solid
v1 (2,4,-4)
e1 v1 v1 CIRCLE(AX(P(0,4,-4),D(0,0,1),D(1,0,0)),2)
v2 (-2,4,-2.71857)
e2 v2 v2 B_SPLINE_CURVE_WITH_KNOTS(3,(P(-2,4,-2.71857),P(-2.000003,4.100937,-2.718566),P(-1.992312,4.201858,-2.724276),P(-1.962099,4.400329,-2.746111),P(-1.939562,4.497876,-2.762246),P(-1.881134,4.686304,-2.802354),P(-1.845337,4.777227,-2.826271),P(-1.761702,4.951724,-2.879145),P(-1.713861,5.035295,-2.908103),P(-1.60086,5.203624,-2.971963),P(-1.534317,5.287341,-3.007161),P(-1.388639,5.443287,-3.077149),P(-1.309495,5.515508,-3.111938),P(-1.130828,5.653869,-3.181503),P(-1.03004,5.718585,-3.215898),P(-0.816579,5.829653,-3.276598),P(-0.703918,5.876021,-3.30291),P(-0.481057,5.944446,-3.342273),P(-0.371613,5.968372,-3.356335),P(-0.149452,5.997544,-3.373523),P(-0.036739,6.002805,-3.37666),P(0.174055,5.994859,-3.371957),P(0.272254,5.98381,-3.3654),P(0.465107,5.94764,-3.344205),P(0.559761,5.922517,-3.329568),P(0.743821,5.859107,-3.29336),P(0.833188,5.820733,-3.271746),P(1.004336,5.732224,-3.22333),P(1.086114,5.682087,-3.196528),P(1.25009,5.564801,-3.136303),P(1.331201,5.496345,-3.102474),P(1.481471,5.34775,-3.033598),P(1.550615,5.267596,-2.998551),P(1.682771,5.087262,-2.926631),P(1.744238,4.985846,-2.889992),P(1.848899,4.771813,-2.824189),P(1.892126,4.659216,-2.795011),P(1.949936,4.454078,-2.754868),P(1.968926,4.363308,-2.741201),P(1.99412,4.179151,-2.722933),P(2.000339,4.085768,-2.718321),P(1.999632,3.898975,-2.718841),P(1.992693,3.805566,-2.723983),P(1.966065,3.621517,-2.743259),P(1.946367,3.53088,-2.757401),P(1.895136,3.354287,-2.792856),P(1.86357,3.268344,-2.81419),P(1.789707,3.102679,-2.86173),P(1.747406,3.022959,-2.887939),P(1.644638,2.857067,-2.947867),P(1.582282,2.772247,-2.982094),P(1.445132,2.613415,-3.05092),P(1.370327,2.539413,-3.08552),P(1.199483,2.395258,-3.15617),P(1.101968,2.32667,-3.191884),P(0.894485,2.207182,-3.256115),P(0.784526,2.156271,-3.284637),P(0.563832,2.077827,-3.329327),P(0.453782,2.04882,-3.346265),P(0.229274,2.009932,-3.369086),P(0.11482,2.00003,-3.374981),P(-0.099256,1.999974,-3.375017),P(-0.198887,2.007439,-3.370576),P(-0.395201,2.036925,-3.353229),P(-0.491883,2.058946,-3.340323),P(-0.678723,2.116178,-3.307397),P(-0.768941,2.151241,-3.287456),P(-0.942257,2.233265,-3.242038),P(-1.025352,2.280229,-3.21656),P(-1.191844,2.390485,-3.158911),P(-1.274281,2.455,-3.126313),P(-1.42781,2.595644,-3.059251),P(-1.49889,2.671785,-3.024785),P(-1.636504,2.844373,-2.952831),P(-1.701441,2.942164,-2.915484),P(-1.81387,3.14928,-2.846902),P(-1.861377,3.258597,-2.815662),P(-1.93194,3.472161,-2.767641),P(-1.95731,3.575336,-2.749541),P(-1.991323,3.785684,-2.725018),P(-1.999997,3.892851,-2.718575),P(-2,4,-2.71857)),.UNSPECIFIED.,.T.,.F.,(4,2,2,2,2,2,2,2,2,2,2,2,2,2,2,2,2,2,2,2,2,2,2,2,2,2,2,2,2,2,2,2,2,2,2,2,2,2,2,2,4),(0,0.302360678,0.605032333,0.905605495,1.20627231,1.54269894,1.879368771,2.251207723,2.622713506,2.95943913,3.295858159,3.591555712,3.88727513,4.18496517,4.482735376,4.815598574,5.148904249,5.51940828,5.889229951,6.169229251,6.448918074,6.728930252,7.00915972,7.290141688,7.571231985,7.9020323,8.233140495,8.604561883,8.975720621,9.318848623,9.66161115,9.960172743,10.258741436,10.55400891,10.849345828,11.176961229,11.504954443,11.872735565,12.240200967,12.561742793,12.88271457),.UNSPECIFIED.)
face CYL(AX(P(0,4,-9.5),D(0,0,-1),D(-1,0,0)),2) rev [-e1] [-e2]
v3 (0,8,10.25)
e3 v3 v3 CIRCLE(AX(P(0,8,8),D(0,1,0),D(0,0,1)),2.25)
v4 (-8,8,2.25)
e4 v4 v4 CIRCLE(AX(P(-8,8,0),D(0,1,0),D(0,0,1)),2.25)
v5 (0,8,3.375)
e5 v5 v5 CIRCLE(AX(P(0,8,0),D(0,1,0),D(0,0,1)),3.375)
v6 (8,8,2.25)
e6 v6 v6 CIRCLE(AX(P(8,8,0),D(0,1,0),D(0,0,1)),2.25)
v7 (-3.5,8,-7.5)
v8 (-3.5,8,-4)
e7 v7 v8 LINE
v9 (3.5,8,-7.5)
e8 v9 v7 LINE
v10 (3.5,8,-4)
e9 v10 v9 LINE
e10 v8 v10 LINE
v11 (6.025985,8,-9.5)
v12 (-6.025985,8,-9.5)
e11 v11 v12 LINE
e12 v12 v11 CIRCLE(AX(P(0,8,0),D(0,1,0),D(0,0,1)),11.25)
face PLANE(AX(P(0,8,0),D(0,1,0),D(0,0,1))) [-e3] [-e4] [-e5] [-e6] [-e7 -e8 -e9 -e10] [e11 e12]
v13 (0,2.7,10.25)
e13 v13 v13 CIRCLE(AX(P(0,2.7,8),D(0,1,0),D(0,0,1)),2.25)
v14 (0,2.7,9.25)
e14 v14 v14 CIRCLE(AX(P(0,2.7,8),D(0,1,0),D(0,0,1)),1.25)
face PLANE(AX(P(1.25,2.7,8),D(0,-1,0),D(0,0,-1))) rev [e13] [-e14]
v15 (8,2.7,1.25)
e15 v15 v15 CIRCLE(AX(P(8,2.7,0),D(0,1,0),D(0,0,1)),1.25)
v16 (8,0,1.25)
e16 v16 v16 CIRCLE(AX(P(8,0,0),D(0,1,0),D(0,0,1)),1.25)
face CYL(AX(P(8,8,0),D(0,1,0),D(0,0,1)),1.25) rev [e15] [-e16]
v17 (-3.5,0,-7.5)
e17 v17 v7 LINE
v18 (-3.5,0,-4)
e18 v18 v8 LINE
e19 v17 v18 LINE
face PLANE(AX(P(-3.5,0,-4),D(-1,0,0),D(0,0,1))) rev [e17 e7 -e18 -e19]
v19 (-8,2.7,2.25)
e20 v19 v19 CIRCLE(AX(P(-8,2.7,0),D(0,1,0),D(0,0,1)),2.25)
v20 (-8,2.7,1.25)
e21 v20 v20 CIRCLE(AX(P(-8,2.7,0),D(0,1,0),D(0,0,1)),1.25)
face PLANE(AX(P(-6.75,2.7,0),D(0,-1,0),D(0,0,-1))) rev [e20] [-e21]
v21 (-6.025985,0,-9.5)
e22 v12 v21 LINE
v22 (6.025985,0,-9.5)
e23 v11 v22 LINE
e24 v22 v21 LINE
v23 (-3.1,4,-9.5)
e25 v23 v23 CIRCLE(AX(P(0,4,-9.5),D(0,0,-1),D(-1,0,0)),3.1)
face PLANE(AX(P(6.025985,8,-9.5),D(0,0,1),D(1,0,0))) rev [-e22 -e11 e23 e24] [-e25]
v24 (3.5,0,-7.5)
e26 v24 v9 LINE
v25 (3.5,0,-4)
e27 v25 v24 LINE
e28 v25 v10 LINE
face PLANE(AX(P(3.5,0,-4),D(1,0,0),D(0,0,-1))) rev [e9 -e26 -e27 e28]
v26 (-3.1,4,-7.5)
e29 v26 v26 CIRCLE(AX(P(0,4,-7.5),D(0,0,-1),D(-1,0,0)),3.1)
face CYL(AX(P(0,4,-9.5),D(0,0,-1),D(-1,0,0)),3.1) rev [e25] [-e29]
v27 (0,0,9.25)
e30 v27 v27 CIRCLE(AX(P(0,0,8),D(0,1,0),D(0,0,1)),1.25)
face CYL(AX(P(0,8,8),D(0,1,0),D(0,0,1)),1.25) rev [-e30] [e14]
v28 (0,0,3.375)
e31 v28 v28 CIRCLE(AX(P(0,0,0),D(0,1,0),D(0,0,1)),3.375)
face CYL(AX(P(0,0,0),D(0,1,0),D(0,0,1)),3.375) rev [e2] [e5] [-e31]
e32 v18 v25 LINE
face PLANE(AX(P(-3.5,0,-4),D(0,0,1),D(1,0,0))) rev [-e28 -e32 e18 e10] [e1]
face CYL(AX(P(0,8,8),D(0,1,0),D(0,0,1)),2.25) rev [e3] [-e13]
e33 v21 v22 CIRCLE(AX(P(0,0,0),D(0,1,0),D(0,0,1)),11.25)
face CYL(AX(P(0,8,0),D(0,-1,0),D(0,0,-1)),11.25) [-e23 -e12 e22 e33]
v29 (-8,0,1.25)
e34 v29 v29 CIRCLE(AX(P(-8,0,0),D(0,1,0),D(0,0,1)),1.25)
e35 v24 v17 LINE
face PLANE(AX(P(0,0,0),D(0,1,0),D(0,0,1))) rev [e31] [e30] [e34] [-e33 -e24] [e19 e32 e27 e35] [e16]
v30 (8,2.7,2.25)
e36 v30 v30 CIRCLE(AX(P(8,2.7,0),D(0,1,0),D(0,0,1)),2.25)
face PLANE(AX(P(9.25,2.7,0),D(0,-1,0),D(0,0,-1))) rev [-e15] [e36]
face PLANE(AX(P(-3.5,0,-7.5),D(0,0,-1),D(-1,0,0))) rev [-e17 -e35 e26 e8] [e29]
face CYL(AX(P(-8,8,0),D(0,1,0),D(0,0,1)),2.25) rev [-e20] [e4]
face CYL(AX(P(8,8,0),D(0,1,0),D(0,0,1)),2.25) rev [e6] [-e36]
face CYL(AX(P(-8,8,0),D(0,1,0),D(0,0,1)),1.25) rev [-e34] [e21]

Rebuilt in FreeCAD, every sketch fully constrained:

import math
import FreeCAD as App
import Part
import Sketcher

doc = App.newDocument("Part")
body = doc.addObject("PartDesign::Body", "Body")

# Sketch on XZ plane
sketch1 = body.newObject("Sketcher::SketchObject", "Sketch")
sketch1.AttachmentSupport = (doc.getObject("XZ_Plane"), [""])
sketch1.MapMode = "FlatFace"
sketch1.addGeometry([
    Part.LineSegment(App.Vector(6, -10, 0), App.Vector(-6, -10, 0)),
    Part.ArcOfCircle(Part.Circle(App.Vector(0, 0, 0), App.Vector(0, 0, 1), 11), math.radians(-58), math.radians(238)),
], False)
sketch1.addConstraint([
    Sketcher.Constraint("Coincident", 0, 1, 1, 1),
    Sketcher.Constraint("Coincident", 1, 2, 0, 2),
    Sketcher.Constraint("Horizontal", 0),
    Sketcher.Constraint("Coincident", 1, 3, -1, 1),
    Sketcher.Constraint("Radius", 1, 11.25),
    Sketcher.Constraint("DistanceY", 0, 1, -1, 1, 9.5),
])
pad1 = body.newObject("PartDesign::Pad", "Pad")
pad1.Profile = sketch1
pad1.Length = 8
pad1.Reversed = True

# Sketch on XZ plane
sketch2 = body.newObject("Sketcher::SketchObject", "Sketch001")
sketch2.AttachmentSupport = (doc.getObject("XZ_Plane"), [""])
sketch2.MapMode = "FlatFace"
sketch2.AttachmentOffset = App.Placement(App.Vector(0, 0, -8), App.Rotation())
sketch2.addGeometry(Part.Circle(App.Vector(0, 0, 0), App.Vector(0, 0, 1), 3.4), False)
sketch2.addConstraint([
    Sketcher.Constraint("Coincident", 0, 3, -1, 1),
    Sketcher.Constraint("Diameter", 0, 6.75),
])
pocket1 = body.newObject("PartDesign::Pocket", "Pocket")
pocket1.Profile = sketch2
pocket1.Type = "ThroughAll"
pocket1.Reversed = True

# Sketch on XZ plane
sketch3 = body.newObject("Sketcher::SketchObject", "Sketch002")
sketch3.AttachmentSupport = (doc.getObject("XZ_Plane"), [""])
sketch3.MapMode = "FlatFace"
sketch3.AttachmentOffset = App.Placement(App.Vector(0, 0, -8), App.Rotation())
sketch3.addGeometry([
    Part.LineSegment(App.Vector(-3.5, -7.5, 0), App.Vector(-3.5, -4, 0)),
    Part.LineSegment(App.Vector(-3.5, -4, 0), App.Vector(3.5, -4, 0)),
    Part.LineSegment(App.Vector(3.5, -4, 0), App.Vector(3.5, -7.5, 0)),
    Part.LineSegment(App.Vector(3.5, -7.5, 0), App.Vector(-3.5, -7.5, 0)),
], False)
sketch3.addConstraint([
    Sketcher.Constraint("Coincident", 0, 2, 1, 1),
    Sketcher.Constraint("Coincident", 1, 2, 2, 1),
    Sketcher.Constraint("Coincident", 2, 2, 3, 1),
    Sketcher.Constraint("Coincident", 3, 2, 0, 1),
    Sketcher.Constraint("Vertical", 0),
    Sketcher.Constraint("Horizontal", 1),
    Sketcher.Constraint("Vertical", 2),
    Sketcher.Constraint("Horizontal", 3),
    Sketcher.Constraint("DistanceX", 1, 1, 1, 2, 7.0),
    Sketcher.Constraint("DistanceY", 0, 1, 0, 2, 3.5),
    Sketcher.Constraint("DistanceY", 0, 2, -1, 1, 4.0),
    Sketcher.Constraint("DistanceX", 0, 2, -1, 1, 3.5),
])
pocket2 = body.newObject("PartDesign::Pocket", "Pocket001")
pocket2.Profile = sketch3
pocket2.Type = "ThroughAll"
pocket2.Reversed = True

# Sketch on XZ plane
sketch4 = body.newObject("Sketcher::SketchObject", "Sketch003")
sketch4.AttachmentSupport = (doc.getObject("XZ_Plane"), [""])
sketch4.MapMode = "FlatFace"
sketch4.AttachmentOffset = App.Placement(App.Vector(0, 0, -8), App.Rotation())
sketch4.addGeometry([
    Part.Circle(App.Vector(-8, 0, 0), App.Vector(0, 0, 1), 1.2),
    Part.Circle(App.Vector(0, 8, 0), App.Vector(0, 0, 1), 1.2),
    Part.Circle(App.Vector(8, 0, 0), App.Vector(0, 0, 1), 1.2),
], False)
sketch4.addConstraint([
    Sketcher.Constraint("Equal", 0, 1),
    Sketcher.Constraint("Equal", 1, 2),
    Sketcher.Constraint("Symmetric", 0, 3, 2, 3, -1, 1),
    Sketcher.Constraint("PointOnObject", 0, 3, -1),
    Sketcher.Constraint("PointOnObject", 1, 3, -2),
    Sketcher.Constraint("Diameter", 0, 2.5),
    Sketcher.Constraint("DistanceX", 0, 3, -1, 1, 8.0),
    Sketcher.Constraint("DistanceY", -1, 1, 1, 3, 8.0),
])
doc.recompute()
hole = body.newObject("PartDesign::Hole", "Hole")
hole.Profile = sketch4
hole.ThreadType = "None"
hole.Diameter = 2.5
hole.DepthType = "ThroughAll"
hole.HoleCutType = "Counterbore"
hole.HoleCutDiameter = 4.5
hole.HoleCutDepth = 5.3
hole.Reversed = True

# Sketch on XY plane
sketch5 = body.newObject("Sketcher::SketchObject", "Sketch004")
sketch5.AttachmentSupport = (doc.getObject("XY_Plane"), [""])
sketch5.MapMode = "FlatFace"
sketch5.AttachmentOffset = App.Placement(App.Vector(0, 0, -9.5), App.Rotation())
sketch5.addGeometry(Part.Circle(App.Vector(0, 4, 0), App.Vector(0, 0, 1), 2), False)
sketch5.addConstraint([
    Sketcher.Constraint("PointOnObject", 0, 3, -2),
    Sketcher.Constraint("Diameter", 0, 4.0),
    Sketcher.Constraint("DistanceY", -1, 1, 0, 3, 4.0),
])
doc.recompute()
hole2 = body.newObject("PartDesign::Hole", "Hole001")
hole2.Profile = sketch5
hole2.ThreadType = "None"
hole2.Diameter = 4
hole2.DepthType = "Dimension"
hole2.Depth = 9.499
hole2.DrillPoint = "Angled"
hole2.DrillPointAngle = 118
hole2.HoleCutType = "Counterbore"
hole2.HoleCutDiameter = 6.2
hole2.HoleCutDepth = 2
hole2.Reversed = True

doc.recompute()
